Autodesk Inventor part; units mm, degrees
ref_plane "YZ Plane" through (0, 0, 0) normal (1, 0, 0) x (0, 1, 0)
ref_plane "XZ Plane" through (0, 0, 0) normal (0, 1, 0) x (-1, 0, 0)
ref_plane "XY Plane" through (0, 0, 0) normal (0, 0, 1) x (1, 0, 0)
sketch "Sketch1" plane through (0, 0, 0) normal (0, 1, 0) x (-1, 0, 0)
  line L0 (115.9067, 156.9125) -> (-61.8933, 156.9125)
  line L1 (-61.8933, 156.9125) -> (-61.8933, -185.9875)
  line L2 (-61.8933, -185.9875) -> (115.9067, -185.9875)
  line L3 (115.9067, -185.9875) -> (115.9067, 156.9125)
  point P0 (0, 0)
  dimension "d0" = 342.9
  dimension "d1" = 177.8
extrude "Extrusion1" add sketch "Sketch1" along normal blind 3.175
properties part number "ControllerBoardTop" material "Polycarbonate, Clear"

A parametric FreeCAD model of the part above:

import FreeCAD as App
import Part
import Sketcher
from FreeCAD import Vector
Q = App.Units.Quantity

doc = App.newDocument("Part")
params = doc.addObject("Spreadsheet::Sheet", "Params")
for row, (alias, value) in enumerate([
    ("sketch1_width", "7 in"),
    ("sketch1_height", "13.5 in"),
    ("pad1_length", "0.125 in"),
], start=1):
    params.set(f"A{row}", alias)
    params.set(f"B{row}", "=" + value)
    params.setAlias(f"B{row}", alias)

body = doc.addObject("PartDesign::Body", "Body")

# Sketch on XZ plane
sketch1 = doc.addObject("Sketcher::SketchObject", "Sketch")
body.addObject(sketch1)
sketch1.AttachmentSupport = (doc.XZ_Plane, [""])
sketch1.MapMode = "FlatFace"
sketch1.addGeometry(Part.LineSegment(Vector(-115.9067, -185.9875, 0), Vector(-115.9067, 156.9125, 0)), False)
sketch1.addGeometry(Part.LineSegment(Vector(-115.9067, 156.9125, 0), Vector(61.8933, 156.9125, 0)), False)
sketch1.addGeometry(Part.LineSegment(Vector(61.8933, 156.9125, 0), Vector(61.8933, -185.9875, 0)), False)
sketch1.addGeometry(Part.LineSegment(Vector(61.8933, -185.9875, 0), Vector(-115.9067, -185.9875, 0)), False)
sketch1.addConstraint(Sketcher.Constraint("Coincident", 0, 2, 1, 1))
sketch1.addConstraint(Sketcher.Constraint("Coincident", 1, 2, 2, 1))
sketch1.addConstraint(Sketcher.Constraint("Coincident", 2, 2, 3, 1))
sketch1.addConstraint(Sketcher.Constraint("Coincident", 3, 2, 0, 1))
sketch1.addConstraint(Sketcher.Constraint("Vertical", 0))
sketch1.addConstraint(Sketcher.Constraint("Horizontal", 1))
sketch1.addConstraint(Sketcher.Constraint("Vertical", 2))
sketch1.addConstraint(Sketcher.Constraint("Horizontal", 3))
sketch1.addConstraint(Sketcher.Constraint("DistanceX", 1, 1, 1, 2, Q("7 in")))
sketch1.addConstraint(Sketcher.Constraint("DistanceY", 0, 1, 0, 2, Q("13.5 in")))
sketch1.addConstraint(Sketcher.Constraint("DistanceX", 0, 2, -1, 1, Q("115.9067 mm")))
sketch1.addConstraint(Sketcher.Constraint("DistanceY", -1, 1, 0, 2, Q("156.9125 mm")))
sketch1.setExpression("Constraints[8]", "Params.sketch1_width")
sketch1.setExpression("Constraints[9]", "Params.sketch1_height")
pad1 = doc.addObject("PartDesign::Pad", "Pad")
body.addObject(pad1)
pad1.Profile = sketch1
pad1.setExpression("Length", "Params.pad1_length")
pad1.Reversed = True

doc.recompute()
